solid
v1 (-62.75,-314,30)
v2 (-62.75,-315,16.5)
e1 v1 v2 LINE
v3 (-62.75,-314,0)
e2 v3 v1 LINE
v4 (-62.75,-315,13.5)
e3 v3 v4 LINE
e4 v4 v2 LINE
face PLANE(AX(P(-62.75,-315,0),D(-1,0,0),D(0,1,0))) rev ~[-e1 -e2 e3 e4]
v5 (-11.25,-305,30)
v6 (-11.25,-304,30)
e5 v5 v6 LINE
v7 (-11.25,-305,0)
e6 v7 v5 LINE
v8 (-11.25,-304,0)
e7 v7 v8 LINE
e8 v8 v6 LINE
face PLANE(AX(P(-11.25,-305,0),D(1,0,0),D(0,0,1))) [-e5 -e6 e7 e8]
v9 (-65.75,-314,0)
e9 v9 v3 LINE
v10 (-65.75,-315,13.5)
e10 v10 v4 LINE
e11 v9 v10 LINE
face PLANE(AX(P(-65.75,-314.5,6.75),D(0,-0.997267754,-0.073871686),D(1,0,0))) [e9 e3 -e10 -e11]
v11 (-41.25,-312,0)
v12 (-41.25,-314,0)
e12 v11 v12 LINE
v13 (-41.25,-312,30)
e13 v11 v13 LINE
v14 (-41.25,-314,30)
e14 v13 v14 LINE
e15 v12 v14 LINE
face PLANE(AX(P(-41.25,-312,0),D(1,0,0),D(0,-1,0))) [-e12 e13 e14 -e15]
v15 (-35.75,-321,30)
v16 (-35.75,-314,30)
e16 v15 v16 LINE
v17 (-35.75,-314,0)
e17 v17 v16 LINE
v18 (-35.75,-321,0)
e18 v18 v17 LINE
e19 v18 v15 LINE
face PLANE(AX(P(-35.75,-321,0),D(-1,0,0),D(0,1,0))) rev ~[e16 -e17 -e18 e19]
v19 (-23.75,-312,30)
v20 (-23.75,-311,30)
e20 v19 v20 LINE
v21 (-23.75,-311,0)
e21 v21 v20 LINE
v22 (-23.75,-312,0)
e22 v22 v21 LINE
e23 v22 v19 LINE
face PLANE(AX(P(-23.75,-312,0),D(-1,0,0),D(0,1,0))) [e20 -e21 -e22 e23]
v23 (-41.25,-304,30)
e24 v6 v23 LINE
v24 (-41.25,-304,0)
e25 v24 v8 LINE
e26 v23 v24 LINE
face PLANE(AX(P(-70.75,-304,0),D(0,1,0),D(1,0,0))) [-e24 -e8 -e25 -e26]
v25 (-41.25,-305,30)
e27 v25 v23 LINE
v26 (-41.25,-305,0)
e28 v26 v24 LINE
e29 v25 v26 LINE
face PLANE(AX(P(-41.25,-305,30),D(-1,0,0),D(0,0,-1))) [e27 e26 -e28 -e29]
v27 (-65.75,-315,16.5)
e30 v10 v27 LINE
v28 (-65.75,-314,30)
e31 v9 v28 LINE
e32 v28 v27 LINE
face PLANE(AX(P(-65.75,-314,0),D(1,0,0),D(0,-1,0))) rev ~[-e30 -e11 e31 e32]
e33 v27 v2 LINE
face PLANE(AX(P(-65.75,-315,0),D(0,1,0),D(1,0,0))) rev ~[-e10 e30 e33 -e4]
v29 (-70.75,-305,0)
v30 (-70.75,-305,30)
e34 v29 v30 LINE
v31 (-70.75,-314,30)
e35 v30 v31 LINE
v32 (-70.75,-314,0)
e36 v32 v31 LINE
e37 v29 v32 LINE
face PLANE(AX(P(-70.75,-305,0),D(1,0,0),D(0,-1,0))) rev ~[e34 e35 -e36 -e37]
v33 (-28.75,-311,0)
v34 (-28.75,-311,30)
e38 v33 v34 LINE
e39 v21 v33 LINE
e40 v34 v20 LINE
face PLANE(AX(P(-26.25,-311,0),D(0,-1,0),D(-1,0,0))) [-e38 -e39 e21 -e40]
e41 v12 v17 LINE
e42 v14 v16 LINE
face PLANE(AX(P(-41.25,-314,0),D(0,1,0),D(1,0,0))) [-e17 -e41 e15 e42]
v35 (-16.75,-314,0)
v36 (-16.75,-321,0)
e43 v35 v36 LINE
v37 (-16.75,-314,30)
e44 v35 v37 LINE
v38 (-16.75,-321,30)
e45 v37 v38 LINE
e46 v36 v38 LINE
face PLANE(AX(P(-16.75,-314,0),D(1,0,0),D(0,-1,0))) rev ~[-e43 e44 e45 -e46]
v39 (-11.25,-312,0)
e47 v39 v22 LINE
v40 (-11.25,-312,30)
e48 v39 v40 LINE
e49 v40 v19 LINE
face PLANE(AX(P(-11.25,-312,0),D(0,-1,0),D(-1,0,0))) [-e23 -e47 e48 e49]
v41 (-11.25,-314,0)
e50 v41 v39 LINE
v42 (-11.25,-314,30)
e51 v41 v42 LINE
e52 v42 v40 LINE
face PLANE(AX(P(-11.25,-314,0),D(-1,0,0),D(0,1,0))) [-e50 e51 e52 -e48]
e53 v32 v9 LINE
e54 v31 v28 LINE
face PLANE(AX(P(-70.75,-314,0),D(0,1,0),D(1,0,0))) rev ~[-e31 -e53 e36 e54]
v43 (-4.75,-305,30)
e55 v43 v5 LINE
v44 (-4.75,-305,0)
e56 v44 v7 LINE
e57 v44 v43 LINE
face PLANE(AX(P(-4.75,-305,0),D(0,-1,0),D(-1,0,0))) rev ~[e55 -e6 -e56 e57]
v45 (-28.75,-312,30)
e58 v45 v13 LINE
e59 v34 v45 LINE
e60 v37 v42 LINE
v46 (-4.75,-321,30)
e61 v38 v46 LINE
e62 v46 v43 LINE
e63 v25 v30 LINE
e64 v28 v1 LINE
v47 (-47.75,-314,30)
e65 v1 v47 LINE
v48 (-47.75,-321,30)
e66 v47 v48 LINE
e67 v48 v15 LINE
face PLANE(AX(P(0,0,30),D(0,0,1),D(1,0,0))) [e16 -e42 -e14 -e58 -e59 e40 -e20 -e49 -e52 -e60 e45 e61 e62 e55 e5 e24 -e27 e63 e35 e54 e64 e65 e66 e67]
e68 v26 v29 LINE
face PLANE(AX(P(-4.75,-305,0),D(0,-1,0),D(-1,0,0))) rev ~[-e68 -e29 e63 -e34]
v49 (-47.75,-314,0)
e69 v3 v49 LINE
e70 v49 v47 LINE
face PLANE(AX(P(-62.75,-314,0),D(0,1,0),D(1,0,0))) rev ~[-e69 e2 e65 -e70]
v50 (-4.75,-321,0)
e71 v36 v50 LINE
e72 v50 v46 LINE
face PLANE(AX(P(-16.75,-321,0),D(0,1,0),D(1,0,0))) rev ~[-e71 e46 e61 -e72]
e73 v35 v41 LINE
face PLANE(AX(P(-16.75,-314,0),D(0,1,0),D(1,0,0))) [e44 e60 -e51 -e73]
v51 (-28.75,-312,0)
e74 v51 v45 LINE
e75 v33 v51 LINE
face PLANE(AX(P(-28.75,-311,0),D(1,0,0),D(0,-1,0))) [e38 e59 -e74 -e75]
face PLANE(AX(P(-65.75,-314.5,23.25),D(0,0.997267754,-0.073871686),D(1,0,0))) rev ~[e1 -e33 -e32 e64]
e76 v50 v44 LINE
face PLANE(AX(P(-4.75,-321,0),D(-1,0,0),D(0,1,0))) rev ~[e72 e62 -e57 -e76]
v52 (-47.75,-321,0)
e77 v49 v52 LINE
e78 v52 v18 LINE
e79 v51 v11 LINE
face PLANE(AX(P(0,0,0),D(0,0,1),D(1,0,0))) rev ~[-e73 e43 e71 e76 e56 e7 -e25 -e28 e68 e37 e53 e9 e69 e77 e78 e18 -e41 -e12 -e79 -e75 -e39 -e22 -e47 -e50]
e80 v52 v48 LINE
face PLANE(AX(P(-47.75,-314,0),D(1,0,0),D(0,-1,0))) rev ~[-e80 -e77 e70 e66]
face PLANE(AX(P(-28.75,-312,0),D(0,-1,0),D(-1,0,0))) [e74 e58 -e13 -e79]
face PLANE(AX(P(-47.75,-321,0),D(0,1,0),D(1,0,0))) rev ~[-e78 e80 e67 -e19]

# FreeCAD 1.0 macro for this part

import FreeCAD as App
import Part
import Sketcher
from FreeCAD import Vector


def edges_at(feature, points):
    """Names of the edges that pass closest to the given points."""
    edges = feature.Shape.Edges
    near = lambda p: min(range(len(edges)), key=lambda i: edges[i].distToShape(Part.Vertex(*p))[0])
    return sorted({f"Edge{near(p) + 1}" for p in points})

doc = App.newDocument("Part")
params = doc.addObject("Spreadsheet::Sheet", "Params")
for row, (alias, value) in enumerate([
    ("sketch1_width", "5 mm"),
    ("sketch1_width2", "12 mm"),
    ("sketch1_width3", "3 mm"),
    ("sketch1_height", "2 mm"),
    ("sketch1_height2", "1 mm"),
    ("pad1_length", "30 mm"),
    ("chamfer_size", "1 mm"),
    ("chamfer_size2", "13.5 mm"),
    ("chamfer2_size", "1 mm"),
    ("chamfer2_size2", "13.5 mm"),
    ("sketch2_width", "30 mm"),
    ("pad2_length", "1 mm"),
], start=1):
    params.set(f"A{row}", alias)
    params.set(f"B{row}", "=" + value)
    params.setAlias(f"B{row}", alias)

body = doc.addObject("PartDesign::Body", "Body")

# Sketch on XY plane
sketch1 = body.newObject("Sketcher::SketchObject", "Sketch")
sketch1.AttachmentSupport = (doc.getObject("XY_Plane"), [""])
sketch1.MapMode = "FlatFace"
sketch1.addGeometry([
    Part.LineSegment(Vector(-35.75, -314, 0), Vector(-41.25, -314, 0)),  # 0
    Part.LineSegment(Vector(-41.25, -314, 0), Vector(-41.25, -312, 0)),  # 1
    Part.LineSegment(Vector(-41.25, -312, 0), Vector(-28.75, -312, 0)),  # 2
    Part.LineSegment(Vector(-28.75, -312, 0), Vector(-28.75, -311, 0)),  # 3
    Part.LineSegment(Vector(-28.75, -311, 0), Vector(-23.75, -311, 0)),  # 4
    Part.LineSegment(Vector(-23.75, -311, 0), Vector(-23.75, -312, 0)),  # 5
    Part.LineSegment(Vector(-23.75, -312, 0), Vector(-11.25, -312, 0)),  # 6
    Part.LineSegment(Vector(-11.25, -312, 0), Vector(-11.25, -314, 0)),  # 7
    Part.LineSegment(Vector(-11.25, -314, 0), Vector(-16.75, -314, 0)),  # 8
    Part.LineSegment(Vector(-16.75, -314, 0), Vector(-16.75, -321, 0)),  # 9
    Part.LineSegment(Vector(-16.75, -321, 0), Vector(-4.75, -321, 0)),  # 10
    Part.LineSegment(Vector(-4.75, -321, 0), Vector(-4.75, -305, 0)),  # 11
    Part.LineSegment(Vector(-4.75, -305, 0), Vector(-70.75, -305, 0)),  # 12
    Part.LineSegment(Vector(-70.75, -305, 0), Vector(-70.75, -314, 0)),  # 13
    Part.LineSegment(Vector(-70.75, -314, 0), Vector(-65.75, -314, 0)),  # 14
    Part.LineSegment(Vector(-65.75, -314, 0), Vector(-65.75, -315, 0)),  # 15
    Part.LineSegment(Vector(-65.75, -315, 0), Vector(-62.75, -315, 0)),  # 16
    Part.LineSegment(Vector(-62.75, -315, 0), Vector(-62.75, -314, 0)),  # 17
    Part.LineSegment(Vector(-62.75, -314, 0), Vector(-47.75, -314, 0)),  # 18
    Part.LineSegment(Vector(-47.75, -314, 0), Vector(-47.75, -321, 0)),  # 19
    Part.LineSegment(Vector(-47.75, -321, 0), Vector(-35.75, -321, 0)),  # 20
    Part.LineSegment(Vector(-35.75, -321, 0), Vector(-35.75, -314, 0)),  # 21
], False)
sketch1.addConstraint([
    Sketcher.Constraint("Coincident", 0, 2, 1, 1),
    Sketcher.Constraint("Coincident", 1, 2, 2, 1),
    Sketcher.Constraint("Coincident", 2, 2, 3, 1),
    Sketcher.Constraint("Coincident", 3, 2, 4, 1),
    Sketcher.Constraint("Coincident", 4, 2, 5, 1),
    Sketcher.Constraint("Coincident", 5, 2, 6, 1),
    Sketcher.Constraint("Coincident", 6, 2, 7, 1),
    Sketcher.Constraint("Coincident", 7, 2, 8, 1),
    Sketcher.Constraint("Coincident", 8, 2, 9, 1),
    Sketcher.Constraint("Coincident", 9, 2, 10, 1),
    Sketcher.Constraint("Coincident", 10, 2, 11, 1),
    Sketcher.Constraint("Coincident", 11, 2, 12, 1),
    Sketcher.Constraint("Coincident", 12, 2, 13, 1),
    Sketcher.Constraint("Coincident", 13, 2, 14, 1),
    Sketcher.Constraint("Coincident", 14, 2, 15, 1),
    Sketcher.Constraint("Coincident", 15, 2, 16, 1),
    Sketcher.Constraint("Coincident", 16, 2, 17, 1),
    Sketcher.Constraint("Coincident", 17, 2, 18, 1),
    Sketcher.Constraint("Coincident", 18, 2, 19, 1),
    Sketcher.Constraint("Coincident", 19, 2, 20, 1),
    Sketcher.Constraint("Coincident", 20, 2, 21, 1),
    Sketcher.Constraint("Coincident", 21, 2, 0, 1),
    Sketcher.Constraint("Horizontal", 0),
    Sketcher.Constraint("Vertical", 1),
    Sketcher.Constraint("Horizontal", 2),
    Sketcher.Constraint("Vertical", 3),
    Sketcher.Constraint("Horizontal", 4),
    Sketcher.Constraint("Vertical", 5),
    Sketcher.Constraint("Horizontal", 6),
    Sketcher.Constraint("Vertical", 7),
    Sketcher.Constraint("Horizontal", 8),
    Sketcher.Constraint("Vertical", 9),
    Sketcher.Constraint("Horizontal", 10),
    Sketcher.Constraint("Vertical", 11),
    Sketcher.Constraint("Horizontal", 12),
    Sketcher.Constraint("Vertical", 13),
    Sketcher.Constraint("Horizontal", 14),
    Sketcher.Constraint("Vertical", 15),
    Sketcher.Constraint("Horizontal", 16),
    Sketcher.Constraint("Vertical", 17),
    Sketcher.Constraint("Horizontal", 18),
    Sketcher.Constraint("Vertical", 19),
    Sketcher.Constraint("Horizontal", 20),
    Sketcher.Constraint("Vertical", 21),
    Sketcher.Constraint("Horizontal", 2, 2, 5, 2),
    Sketcher.Constraint("Horizontal", 0, 2, 7, 2),
    Sketcher.Constraint("Horizontal", 8, 2, 13, 2),
    Sketcher.Constraint("Horizontal", 14, 2, 17, 2),
    Sketcher.Constraint("Horizontal", 10, 2, 19, 2),
    Sketcher.Constraint("Equal", 2, 6),
    Sketcher.Constraint("Equal", 0, 8),
    Sketcher.Constraint("Equal", 4, 14),
    Sketcher.Constraint("Equal", 10, 20),
    Sketcher.Constraint("Equal", 5, 15),
    Sketcher.Constraint("DistanceX", 4, 1, 4, 2, 5.0),
    Sketcher.Constraint("DistanceX", 10, 1, 10, 2, 12.0),
    Sketcher.Constraint("DistanceX", 16, 1, 16, 2, 3.0),
    Sketcher.Constraint("DistanceY", 1, 1, 1, 2, 2.0),
    Sketcher.Constraint("DistanceY", 3, 1, 3, 2, 1.0),
    Sketcher.Constraint("DistanceY", 9, 2, 9, 1, 7.0),
    Sketcher.Constraint("DistanceY", 11, 1, 11, 2, 16.0),
    Sketcher.Constraint("DistanceX", 5, 2, 8, 2, 7.0),
    Sketcher.Constraint("DistanceX", 12, 2, 12, 1, 66.0),
    Sketcher.Constraint("DistanceX", 0, 2, 0, 1, 5.5),
    Sketcher.Constraint("DistanceY", 0, 2, -1, 1, 314.0),
    Sketcher.Constraint("DistanceX", 0, 2, -1, 1, 41.25),
])
sketch1.setExpression("Constraints[54]", "Params.sketch1_width")
sketch1.setExpression("Constraints[55]", "Params.sketch1_width2")
sketch1.setExpression("Constraints[56]", "Params.sketch1_width3")
sketch1.setExpression("Constraints[57]", "Params.sketch1_height")
sketch1.setExpression("Constraints[58]", "Params.sketch1_height2")
pad1 = body.newObject("PartDesign::Pad", "Pad")
pad1.Profile = sketch1
pad1.setExpression("Length", "Params.pad1_length")
doc.recompute()

chamfer = body.newObject("PartDesign::Chamfer", "Chamfer")
chamfer.Base = (pad1, edges_at(pad1, [(-64.25, -315, 30)]))
chamfer.ChamferType = "Two distances"
chamfer.setExpression("Size", "Params.chamfer_size")
chamfer.setExpression("Size2", "Params.chamfer_size2")
chamfer.FlipDirection = True
doc.recompute()

chamfer2 = body.newObject("PartDesign::Chamfer", "Chamfer001")
chamfer2.Base = (chamfer, edges_at(chamfer, [(-64.25, -315, 0)]))
chamfer2.ChamferType = "Two distances"
chamfer2.setExpression("Size", "Params.chamfer2_size")
chamfer2.setExpression("Size2", "Params.chamfer2_size2")
chamfer2.FlipDirection = True

# Sketch on XZ plane
sketch2 = body.newObject("Sketcher::SketchObject", "Sketch001")
sketch2.AttachmentSupport = (doc.getObject("XZ_Plane"), [""])
sketch2.MapMode = "FlatFace"
sketch2.AttachmentOffset = App.Placement(Vector(0, 0, 305), App.Rotation())
sketch2.addGeometry([
    Part.LineSegment(Vector(-11.25, 0, 0), Vector(-41.25, 0, 0)),
    Part.LineSegment(Vector(-41.25, 0, 0), Vector(-41.25, 30, 0)),
    Part.LineSegment(Vector(-41.25, 30, 0), Vector(-11.25, 30, 0)),
    Part.LineSegment(Vector(-11.25, 30, 0), Vector(-11.25, 0, 0)),
], False)
sketch2.addConstraint([
    Sketcher.Constraint("Coincident", 0, 2, 1, 1),
    Sketcher.Constraint("Coincident", 1, 2, 2, 1),
    Sketcher.Constraint("Coincident", 2, 2, 3, 1),
    Sketcher.Constraint("Coincident", 3, 2, 0, 1),
    Sketcher.Constraint("Horizontal", 0),
    Sketcher.Constraint("Vertical", 1),
    Sketcher.Constraint("Horizontal", 2),
    Sketcher.Constraint("Vertical", 3),
    Sketcher.Constraint("PointOnObject", 0, 2, -1),
    Sketcher.Constraint("Equal", 2, 1),
    Sketcher.Constraint("DistanceX", 0, 2, 0, 1, 30.0),
    Sketcher.Constraint("DistanceX", 0, 2, -1, 1, 41.25),
])
sketch2.setExpression("Constraints[10]", "Params.sketch2_width")
pad2 = body.newObject("PartDesign::Pad", "Pad001")
pad2.Profile = sketch2
pad2.setExpression("Length", "Params.pad2_length")
pad2.Reversed = True

doc.recompute()
